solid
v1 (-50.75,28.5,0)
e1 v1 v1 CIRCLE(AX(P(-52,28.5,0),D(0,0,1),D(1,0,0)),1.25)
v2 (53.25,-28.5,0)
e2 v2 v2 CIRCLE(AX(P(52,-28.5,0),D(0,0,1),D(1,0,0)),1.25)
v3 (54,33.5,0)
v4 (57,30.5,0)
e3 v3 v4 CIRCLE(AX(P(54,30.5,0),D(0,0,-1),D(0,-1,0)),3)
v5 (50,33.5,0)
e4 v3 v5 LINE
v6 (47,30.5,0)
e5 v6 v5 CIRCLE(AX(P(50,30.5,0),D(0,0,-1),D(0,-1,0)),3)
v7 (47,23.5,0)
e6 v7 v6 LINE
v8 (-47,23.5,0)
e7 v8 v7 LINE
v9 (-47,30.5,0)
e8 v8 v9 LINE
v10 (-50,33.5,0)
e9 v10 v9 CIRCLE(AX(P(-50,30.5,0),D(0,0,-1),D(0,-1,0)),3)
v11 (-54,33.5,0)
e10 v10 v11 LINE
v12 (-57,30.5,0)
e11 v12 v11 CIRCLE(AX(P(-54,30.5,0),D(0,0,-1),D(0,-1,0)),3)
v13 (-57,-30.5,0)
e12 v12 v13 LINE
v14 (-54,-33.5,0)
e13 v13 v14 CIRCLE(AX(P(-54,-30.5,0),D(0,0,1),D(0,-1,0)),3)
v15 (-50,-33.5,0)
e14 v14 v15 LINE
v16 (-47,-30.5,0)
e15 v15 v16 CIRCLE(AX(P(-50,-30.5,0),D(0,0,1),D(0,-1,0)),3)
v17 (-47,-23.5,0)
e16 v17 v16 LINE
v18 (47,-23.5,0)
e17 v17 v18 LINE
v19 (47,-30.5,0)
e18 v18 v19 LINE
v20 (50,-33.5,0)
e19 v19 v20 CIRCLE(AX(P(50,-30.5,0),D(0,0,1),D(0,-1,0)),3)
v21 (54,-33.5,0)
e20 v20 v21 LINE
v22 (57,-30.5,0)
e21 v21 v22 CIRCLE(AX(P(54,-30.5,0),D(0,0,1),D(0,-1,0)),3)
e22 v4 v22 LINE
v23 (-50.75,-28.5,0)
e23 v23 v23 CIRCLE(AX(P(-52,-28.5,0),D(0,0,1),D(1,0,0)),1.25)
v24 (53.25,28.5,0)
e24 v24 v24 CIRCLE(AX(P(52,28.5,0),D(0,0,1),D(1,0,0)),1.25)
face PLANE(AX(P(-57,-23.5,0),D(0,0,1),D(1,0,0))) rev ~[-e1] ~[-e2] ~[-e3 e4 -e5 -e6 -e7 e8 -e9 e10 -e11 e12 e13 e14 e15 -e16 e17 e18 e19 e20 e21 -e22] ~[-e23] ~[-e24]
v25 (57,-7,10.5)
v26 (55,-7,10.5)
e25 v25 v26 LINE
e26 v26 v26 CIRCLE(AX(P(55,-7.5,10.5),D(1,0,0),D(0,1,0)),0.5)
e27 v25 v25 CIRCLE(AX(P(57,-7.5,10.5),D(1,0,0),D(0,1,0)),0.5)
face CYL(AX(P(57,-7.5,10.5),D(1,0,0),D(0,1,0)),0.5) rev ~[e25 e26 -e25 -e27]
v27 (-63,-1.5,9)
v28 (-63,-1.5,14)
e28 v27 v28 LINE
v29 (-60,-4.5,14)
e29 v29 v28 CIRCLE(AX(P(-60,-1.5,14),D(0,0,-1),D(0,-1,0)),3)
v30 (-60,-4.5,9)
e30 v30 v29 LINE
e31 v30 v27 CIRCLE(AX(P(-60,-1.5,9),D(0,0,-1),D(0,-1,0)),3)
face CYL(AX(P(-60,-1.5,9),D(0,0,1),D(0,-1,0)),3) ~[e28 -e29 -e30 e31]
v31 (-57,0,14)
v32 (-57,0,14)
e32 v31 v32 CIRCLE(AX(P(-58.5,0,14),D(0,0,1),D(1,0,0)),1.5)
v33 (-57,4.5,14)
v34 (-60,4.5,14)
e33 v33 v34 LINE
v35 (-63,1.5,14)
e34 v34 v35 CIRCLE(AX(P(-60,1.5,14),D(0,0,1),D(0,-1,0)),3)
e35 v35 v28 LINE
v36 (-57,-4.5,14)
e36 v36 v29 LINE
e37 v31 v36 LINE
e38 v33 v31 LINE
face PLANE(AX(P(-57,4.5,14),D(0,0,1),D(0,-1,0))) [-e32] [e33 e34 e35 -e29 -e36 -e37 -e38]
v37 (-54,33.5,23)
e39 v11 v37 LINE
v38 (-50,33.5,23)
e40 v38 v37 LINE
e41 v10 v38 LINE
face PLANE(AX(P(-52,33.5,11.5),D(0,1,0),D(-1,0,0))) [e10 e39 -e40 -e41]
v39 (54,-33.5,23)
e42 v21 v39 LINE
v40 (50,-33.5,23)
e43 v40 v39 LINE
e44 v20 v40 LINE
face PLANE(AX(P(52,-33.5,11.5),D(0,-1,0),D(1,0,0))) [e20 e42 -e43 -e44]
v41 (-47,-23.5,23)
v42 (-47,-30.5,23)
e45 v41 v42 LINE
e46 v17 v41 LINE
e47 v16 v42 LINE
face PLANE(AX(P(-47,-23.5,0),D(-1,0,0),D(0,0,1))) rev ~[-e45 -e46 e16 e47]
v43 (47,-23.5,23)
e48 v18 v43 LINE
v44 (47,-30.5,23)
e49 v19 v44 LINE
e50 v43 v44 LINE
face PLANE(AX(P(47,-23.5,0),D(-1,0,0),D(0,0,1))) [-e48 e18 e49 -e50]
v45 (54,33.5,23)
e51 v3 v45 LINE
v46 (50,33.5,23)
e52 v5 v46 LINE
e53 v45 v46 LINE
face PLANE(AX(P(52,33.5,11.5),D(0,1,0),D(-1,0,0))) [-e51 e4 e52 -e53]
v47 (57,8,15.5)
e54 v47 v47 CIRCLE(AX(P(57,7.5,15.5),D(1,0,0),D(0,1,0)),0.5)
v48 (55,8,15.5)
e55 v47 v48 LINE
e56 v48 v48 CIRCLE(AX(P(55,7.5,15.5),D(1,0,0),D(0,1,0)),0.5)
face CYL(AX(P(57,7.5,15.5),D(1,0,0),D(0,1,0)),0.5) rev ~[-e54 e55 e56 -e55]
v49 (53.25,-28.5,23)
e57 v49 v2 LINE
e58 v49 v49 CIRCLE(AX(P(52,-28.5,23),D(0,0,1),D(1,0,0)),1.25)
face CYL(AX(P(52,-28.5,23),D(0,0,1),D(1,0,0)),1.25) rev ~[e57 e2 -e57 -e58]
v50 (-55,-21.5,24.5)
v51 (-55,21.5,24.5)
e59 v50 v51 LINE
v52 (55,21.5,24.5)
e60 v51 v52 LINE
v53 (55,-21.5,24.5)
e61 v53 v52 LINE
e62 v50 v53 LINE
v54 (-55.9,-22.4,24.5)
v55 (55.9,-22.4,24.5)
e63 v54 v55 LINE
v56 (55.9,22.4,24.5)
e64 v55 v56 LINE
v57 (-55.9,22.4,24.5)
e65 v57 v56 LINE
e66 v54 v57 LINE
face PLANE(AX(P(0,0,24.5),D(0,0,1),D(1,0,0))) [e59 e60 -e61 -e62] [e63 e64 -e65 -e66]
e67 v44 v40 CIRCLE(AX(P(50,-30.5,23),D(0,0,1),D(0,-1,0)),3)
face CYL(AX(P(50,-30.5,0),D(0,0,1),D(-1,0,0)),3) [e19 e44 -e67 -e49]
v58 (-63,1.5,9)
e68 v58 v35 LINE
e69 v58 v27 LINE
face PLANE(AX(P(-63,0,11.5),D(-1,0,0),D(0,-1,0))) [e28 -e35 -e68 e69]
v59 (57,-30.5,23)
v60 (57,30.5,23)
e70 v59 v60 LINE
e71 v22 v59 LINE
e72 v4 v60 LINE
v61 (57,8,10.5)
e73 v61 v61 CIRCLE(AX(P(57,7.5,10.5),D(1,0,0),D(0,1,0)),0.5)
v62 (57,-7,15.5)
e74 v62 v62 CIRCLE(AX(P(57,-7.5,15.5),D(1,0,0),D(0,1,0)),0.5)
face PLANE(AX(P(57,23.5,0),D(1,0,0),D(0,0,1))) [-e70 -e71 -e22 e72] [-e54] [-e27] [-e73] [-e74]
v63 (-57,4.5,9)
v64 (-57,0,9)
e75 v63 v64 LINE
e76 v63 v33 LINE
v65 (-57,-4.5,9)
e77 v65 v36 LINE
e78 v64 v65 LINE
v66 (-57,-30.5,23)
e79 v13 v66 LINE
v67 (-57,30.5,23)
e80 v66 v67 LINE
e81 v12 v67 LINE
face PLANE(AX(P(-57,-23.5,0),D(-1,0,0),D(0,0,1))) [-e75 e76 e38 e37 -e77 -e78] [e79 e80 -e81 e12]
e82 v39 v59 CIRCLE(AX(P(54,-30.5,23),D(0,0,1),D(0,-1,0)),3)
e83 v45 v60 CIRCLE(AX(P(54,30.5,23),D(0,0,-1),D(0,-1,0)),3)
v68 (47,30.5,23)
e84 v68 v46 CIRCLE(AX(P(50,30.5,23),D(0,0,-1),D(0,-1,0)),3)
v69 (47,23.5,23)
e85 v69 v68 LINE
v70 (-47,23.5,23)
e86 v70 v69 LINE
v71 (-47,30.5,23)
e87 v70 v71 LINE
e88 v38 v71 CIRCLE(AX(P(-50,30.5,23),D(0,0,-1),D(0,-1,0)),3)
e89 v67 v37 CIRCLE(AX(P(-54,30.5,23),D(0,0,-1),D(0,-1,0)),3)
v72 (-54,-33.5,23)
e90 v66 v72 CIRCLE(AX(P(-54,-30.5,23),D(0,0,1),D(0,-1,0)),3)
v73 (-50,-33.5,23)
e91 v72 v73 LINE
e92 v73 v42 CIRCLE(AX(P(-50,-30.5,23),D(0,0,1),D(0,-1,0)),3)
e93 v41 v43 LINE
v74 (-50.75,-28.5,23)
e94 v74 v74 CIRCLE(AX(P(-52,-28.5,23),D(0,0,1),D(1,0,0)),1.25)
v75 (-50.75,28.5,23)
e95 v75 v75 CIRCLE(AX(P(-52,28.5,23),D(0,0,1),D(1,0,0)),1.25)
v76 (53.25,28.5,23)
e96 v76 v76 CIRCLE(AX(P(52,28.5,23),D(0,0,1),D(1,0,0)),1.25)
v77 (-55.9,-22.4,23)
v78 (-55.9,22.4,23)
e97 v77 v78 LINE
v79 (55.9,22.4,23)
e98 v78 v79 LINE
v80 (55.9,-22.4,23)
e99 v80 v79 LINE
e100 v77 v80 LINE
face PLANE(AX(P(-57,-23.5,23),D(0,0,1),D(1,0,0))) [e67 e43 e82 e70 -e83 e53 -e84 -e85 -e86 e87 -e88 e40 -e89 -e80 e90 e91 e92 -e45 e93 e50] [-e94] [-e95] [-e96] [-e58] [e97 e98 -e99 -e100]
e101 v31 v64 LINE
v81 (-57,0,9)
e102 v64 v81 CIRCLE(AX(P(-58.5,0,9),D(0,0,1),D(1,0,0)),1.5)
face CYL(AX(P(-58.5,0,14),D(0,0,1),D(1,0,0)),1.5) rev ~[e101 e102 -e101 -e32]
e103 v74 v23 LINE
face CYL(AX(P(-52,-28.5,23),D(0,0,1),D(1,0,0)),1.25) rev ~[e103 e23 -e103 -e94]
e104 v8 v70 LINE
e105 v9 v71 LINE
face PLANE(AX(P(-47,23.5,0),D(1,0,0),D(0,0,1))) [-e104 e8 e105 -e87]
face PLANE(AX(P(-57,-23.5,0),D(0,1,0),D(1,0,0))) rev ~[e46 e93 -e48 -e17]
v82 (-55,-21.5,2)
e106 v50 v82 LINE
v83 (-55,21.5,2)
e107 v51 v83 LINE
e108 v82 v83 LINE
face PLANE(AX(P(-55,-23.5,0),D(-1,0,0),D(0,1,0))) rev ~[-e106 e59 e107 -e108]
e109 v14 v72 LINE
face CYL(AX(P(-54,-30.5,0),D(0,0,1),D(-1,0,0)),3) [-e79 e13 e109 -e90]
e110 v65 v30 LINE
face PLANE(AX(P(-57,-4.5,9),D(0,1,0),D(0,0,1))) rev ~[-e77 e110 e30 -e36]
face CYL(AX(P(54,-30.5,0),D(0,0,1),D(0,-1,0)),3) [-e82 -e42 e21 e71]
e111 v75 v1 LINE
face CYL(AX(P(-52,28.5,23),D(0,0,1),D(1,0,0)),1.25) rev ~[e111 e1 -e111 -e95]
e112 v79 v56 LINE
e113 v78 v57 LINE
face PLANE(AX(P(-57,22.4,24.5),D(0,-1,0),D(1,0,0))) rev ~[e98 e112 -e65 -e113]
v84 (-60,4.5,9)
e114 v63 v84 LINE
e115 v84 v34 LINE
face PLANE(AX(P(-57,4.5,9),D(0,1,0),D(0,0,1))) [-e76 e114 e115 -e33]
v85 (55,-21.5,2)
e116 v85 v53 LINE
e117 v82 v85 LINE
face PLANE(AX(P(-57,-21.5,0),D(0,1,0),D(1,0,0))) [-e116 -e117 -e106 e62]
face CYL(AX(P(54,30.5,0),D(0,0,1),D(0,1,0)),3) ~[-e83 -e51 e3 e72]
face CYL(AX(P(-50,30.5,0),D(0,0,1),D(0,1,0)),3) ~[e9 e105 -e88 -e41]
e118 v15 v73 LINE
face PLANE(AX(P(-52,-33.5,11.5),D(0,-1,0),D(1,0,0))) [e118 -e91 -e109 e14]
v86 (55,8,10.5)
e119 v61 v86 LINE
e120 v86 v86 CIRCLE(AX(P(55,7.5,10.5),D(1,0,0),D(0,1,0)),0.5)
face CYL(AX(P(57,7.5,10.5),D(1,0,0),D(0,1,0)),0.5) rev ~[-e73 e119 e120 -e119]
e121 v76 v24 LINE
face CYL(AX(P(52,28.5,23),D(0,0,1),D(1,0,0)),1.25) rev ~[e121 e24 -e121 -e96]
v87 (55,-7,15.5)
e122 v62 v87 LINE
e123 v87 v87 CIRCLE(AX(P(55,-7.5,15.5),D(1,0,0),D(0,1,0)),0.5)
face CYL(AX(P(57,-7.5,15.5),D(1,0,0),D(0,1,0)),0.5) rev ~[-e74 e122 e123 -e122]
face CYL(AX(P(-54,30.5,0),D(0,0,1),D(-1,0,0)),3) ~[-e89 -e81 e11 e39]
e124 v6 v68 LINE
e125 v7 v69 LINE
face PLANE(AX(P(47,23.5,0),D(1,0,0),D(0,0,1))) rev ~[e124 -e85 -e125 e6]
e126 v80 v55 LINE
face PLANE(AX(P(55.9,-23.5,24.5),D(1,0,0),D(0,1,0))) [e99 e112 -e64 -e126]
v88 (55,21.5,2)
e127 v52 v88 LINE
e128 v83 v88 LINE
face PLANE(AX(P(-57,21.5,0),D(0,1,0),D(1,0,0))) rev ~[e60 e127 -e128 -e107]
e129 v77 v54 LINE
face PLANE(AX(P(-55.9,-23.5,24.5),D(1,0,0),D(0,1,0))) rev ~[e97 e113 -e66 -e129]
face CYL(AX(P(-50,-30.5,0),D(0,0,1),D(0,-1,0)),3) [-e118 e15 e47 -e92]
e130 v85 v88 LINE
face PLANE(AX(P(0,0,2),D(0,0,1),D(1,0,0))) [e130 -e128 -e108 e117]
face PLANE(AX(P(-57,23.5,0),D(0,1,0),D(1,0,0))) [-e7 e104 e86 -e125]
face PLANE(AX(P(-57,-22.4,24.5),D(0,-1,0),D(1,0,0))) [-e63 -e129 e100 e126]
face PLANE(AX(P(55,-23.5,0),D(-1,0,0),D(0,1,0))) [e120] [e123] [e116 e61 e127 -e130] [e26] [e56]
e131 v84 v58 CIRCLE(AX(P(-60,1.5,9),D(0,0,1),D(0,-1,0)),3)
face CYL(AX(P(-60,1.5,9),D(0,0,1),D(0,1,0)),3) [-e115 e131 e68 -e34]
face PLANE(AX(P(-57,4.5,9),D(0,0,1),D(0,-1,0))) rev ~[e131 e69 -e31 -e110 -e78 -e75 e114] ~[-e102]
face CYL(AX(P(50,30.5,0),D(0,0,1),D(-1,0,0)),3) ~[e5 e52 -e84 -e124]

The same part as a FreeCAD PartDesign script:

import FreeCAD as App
import Part
import Sketcher

V = App.Vector
Q = App.Units.Quantity


def edges_at(feature, points):
    """Names of the edges that pass closest to the given points."""
    edges = feature.Shape.Edges
    near = lambda p: min(range(len(edges)), key=lambda i: edges[i].distToShape(Part.Vertex(*p))[0])
    return sorted({f"Edge{near(p) + 1}" for p in points})


def faces_at(feature, points):
    """Names of the faces that lie closest to the given points."""
    faces = feature.Shape.Faces
    near = lambda p: min(range(len(faces)), key=lambda i: faces[i].distToShape(Part.Vertex(*p))[0])
    return sorted({f"Face{near(p) + 1}" for p in points})


def add_polygon(sketch, points):
    """Adds a closed chain of lines whose ends are joined by coincident constraints."""
    first, n = sketch.GeometryCount, len(points)
    for a, b in zip(points, points[1:] + points[:1]):
        sketch.addGeometry(Part.LineSegment(App.Vector(*a, 0), App.Vector(*b, 0)), False)
    for i in range(n):
        sketch.addConstraint(Sketcher.Constraint("Coincident", first + i, 2, first + (i + 1) % n, 1))

doc = App.newDocument("Part")
body = doc.addObject("PartDesign::Body", "Body")

# Sketch on XY plane
sketch1 = doc.addObject("Sketcher::SketchObject", "Sketch")
body.addObject(sketch1)
sketch1.AttachmentSupport = (doc.XY_Plane, [""])
sketch1.MapMode = "FlatFace"
add_polygon(sketch1, [(-57, 24), (-57, -24), (57, -24), (57, 24)])  # lines 0-3
sketch1.addConstraint([
    Sketcher.Constraint("Vertical", 0),
    Sketcher.Constraint("Horizontal", 1),
    Sketcher.Constraint("Vertical", 2),
    Sketcher.Constraint("Horizontal", 3),
    Sketcher.Constraint("Symmetric", 0, 2, 2, 2, -1, 1),
    Sketcher.Constraint("DistanceX", 1, 1, 1, 2, Q("114 mm")),
    Sketcher.Constraint("DistanceY", 0, 2, 0, 1, Q("47 mm")),
])
pad1 = doc.addObject("PartDesign::Pad", "Pad")
body.addObject(pad1)
pad1.Profile = sketch1
pad1.Length = 24.5
doc.recompute()

thickness = doc.addObject("PartDesign::Thickness", "Thickness")
body.addObject(thickness)
thickness.Base = (pad1, faces_at(pad1, [(0, 0, 24.5)]))
thickness.Value = 2
thickness.Reversed = True
thickness.Join = "Arc"

# Sketch on XY plane
sketch2 = doc.addObject("Sketcher::SketchObject", "Sketch001")
body.addObject(sketch2)
sketch2.AttachmentSupport = (doc.XY_Plane, [""])
sketch2.MapMode = "FlatFace"
sketch2.AttachmentOffset = App.Placement(V(0, 0, 24.5), App.Rotation())
add_polygon(sketch2, [(-57, -22.4), (-57, -23.5), (57, -23.5), (57, -22.4)])  # lines 0-3
add_polygon(sketch2, [(-57, 23.5), (-57, 22.4), (57, 22.4), (57, 23.5)])  # lines 4-7
sketch2.addConstraint([
    Sketcher.Constraint("Vertical", 0),
    Sketcher.Constraint("Horizontal", 1),
    Sketcher.Constraint("Vertical", 2),
    Sketcher.Constraint("Horizontal", 3),
    Sketcher.Constraint("Vertical", 4),
    Sketcher.Constraint("Horizontal", 5),
    Sketcher.Constraint("Vertical", 6),
    Sketcher.Constraint("Horizontal", 7),
    Sketcher.Constraint("Symmetric", 2, 2, 4, 2, -1, 1),
    Sketcher.Constraint("Symmetric", 0, 2, 6, 2, -1, 1),
    Sketcher.Constraint("Vertical", 3, 2, 4, 2),
    Sketcher.Constraint("DistanceX", 1, 1, 1, 2, Q("114 mm")),
    Sketcher.Constraint("DistanceY", 0, 2, 0, 1, Q("1.1 mm")),
    Sketcher.Constraint("DistanceY", 1, 2, 6, 2, Q("47 mm")),
])
pocket1 = doc.addObject("PartDesign::Pocket", "Pocket")
body.addObject(pocket1)
pocket1.Profile = sketch2
pocket1.Length = 1.5

# Sketch on XY plane
sketch3 = doc.addObject("Sketcher::SketchObject", "Sketch002")
body.addObject(sketch3)
sketch3.AttachmentSupport = (doc.XY_Plane, [""])
sketch3.MapMode = "FlatFace"
sketch3.AttachmentOffset = App.Placement(V(0, 0, 24.5), App.Rotation())
add_polygon(sketch3, [(55.9, 23.5), (55.9, -23.5), (57, -23.5), (57, 23.5)])  # lines 0-3
add_polygon(sketch3, [(-57, 23.5), (-57, -23.5), (-55.9, -23.5), (-55.9, 23.5)])  # lines 4-7
sketch3.addConstraint([
    Sketcher.Constraint("Vertical", 0),
    Sketcher.Constraint("Horizontal", 1),
    Sketcher.Constraint("Vertical", 2),
    Sketcher.Constraint("Horizontal", 3),
    Sketcher.Constraint("Vertical", 4),
    Sketcher.Constraint("Horizontal", 5),
    Sketcher.Constraint("Vertical", 6),
    Sketcher.Constraint("Horizontal", 7),
    Sketcher.Constraint("Symmetric", 2, 2, 4, 2, -1, 1),
    Sketcher.Constraint("Symmetric", 0, 2, 6, 2, -1, 1),
    Sketcher.Constraint("Horizontal", 1, 2, 4, 2),
    Sketcher.Constraint("DistanceY", 0, 2, 0, 1, Q("47 mm")),
    Sketcher.Constraint("DistanceX", 1, 1, 1, 2, Q("1.1 mm")),
    Sketcher.Constraint("DistanceX", -1, 1, 1, 2, Q("57 mm")),
])
pocket2 = doc.addObject("PartDesign::Pocket", "Pocket001")
body.addObject(pocket2)
pocket2.Profile = sketch3
pocket2.Length = 1.5

# Sketch on XZ plane
sketch4 = doc.addObject("Sketcher::SketchObject", "Sketch003")
body.addObject(sketch4)
sketch4.AttachmentSupport = (doc.XZ_Plane, [""])
sketch4.MapMode = "FlatFace"
sketch4.AttachmentOffset = App.Placement(V(0, 0, -23.5), App.Rotation())
add_polygon(sketch4, [(57, 23), (57, 0), (47, 0), (47, 23)])  # lines 0-3
add_polygon(sketch4, [(-47, 23), (-47, 0), (-57, 0), (-57, 23)])  # lines 4-7
sketch4.addConstraint([
    Sketcher.Constraint("Vertical", 0),
    Sketcher.Constraint("Horizontal", 1),
    Sketcher.Constraint("Vertical", 2),
    Sketcher.Constraint("Horizontal", 3),
    Sketcher.Constraint("Vertical", 4),
    Sketcher.Constraint("Horizontal", 5),
    Sketcher.Constraint("Vertical", 6),
    Sketcher.Constraint("Horizontal", 7),
    Sketcher.Constraint("Symmetric", 1, 2, 4, 2, -1, 1),
    Sketcher.Constraint("Symmetric", 0, 2, 5, 2, -2),
    Sketcher.Constraint("Horizontal", 3, 2, 6, 2),
    Sketcher.Constraint("DistanceX", 1, 2, 1, 1, Q("10 mm")),
    Sketcher.Constraint("DistanceY", 0, 2, 0, 1, Q("23 mm")),
    Sketcher.Constraint("DistanceX", -1, 1, 0, 2, Q("57 mm")),
])
pad2 = doc.addObject("PartDesign::Pad", "Pad001")
body.addObject(pad2)
pad2.Profile = sketch4
pad2.Length = 10
pad2.Reversed = True

# Sketch on XZ plane
sketch5 = doc.addObject("Sketcher::SketchObject", "Sketch004")
body.addObject(sketch5)
sketch5.AttachmentSupport = (doc.XZ_Plane, [""])
sketch5.MapMode = "FlatFace"
sketch5.AttachmentOffset = App.Placement(V(0, 0, 23.5), App.Rotation())
add_polygon(sketch5, [(-57, 23), (-57, 0), (-47, 0), (-47, 23)])  # lines 0-3
add_polygon(sketch5, [(47, 23), (47, 0), (57, 0), (57, 23)])  # lines 4-7
sketch5.addConstraint([
    Sketcher.Constraint("Vertical", 0),
    Sketcher.Constraint("Horizontal", 1),
    Sketcher.Constraint("Vertical", 2),
    Sketcher.Constraint("Horizontal", 3),
    Sketcher.Constraint("Vertical", 4),
    Sketcher.Constraint("Horizontal", 5),
    Sketcher.Constraint("Vertical", 6),
    Sketcher.Constraint("Horizontal", 7),
    Sketcher.Constraint("Symmetric", 1, 2, 4, 2, -1, 1),
    Sketcher.Constraint("Symmetric", 0, 2, 5, 2, -2),
    Sketcher.Constraint("Horizontal", 3, 2, 6, 2),
    Sketcher.Constraint("DistanceX", 1, 1, 1, 2, Q("10 mm")),
    Sketcher.Constraint("DistanceY", 0, 2, 0, 1, Q("23 mm")),
    Sketcher.Constraint("DistanceX", 0, 2, -1, 1, Q("57 mm")),
])
pad3 = doc.addObject("PartDesign::Pad", "Pad002")
body.addObject(pad3)
pad3.Profile = sketch5
pad3.Length = 10

# Sketch on XY plane
sketch6 = doc.addObject("Sketcher::SketchObject", "Sketch005")
body.addObject(sketch6)
sketch6.AttachmentSupport = (doc.XY_Plane, [""])
sketch6.MapMode = "FlatFace"
sketch6.AttachmentOffset = App.Placement(V(0, 0, 23), App.Rotation())
sketch6.addGeometry([
    Part.Circle(V(-52, 28.5, 0), V(0, 0, 1), 1.2),
    Part.Circle(V(52, 28.5, 0), V(0, 0, 1), 1.2),
    Part.Circle(V(52, -28.5, 0), V(0, 0, 1), 1.2),
    Part.Circle(V(-52, -28.5, 0), V(0, 0, 1), 1.2),
], False)
sketch6.addConstraint([
    Sketcher.Constraint("Equal", 0, 1),
    Sketcher.Constraint("Equal", 1, 2),
    Sketcher.Constraint("Equal", 2, 3),
    Sketcher.Constraint("Symmetric", 0, 3, 2, 3, -1, 1),
    Sketcher.Constraint("Symmetric", 1, 3, 3, 3, -1, 1),
    Sketcher.Constraint("Symmetric", 0, 3, 1, 3, -2),
    Sketcher.Constraint("Diameter", 0, Q("2.5 mm")),
    Sketcher.Constraint("DistanceX", 0, 3, -1, 1, Q("52 mm")),
    Sketcher.Constraint("DistanceY", 2, 3, 1, 3, Q("57 mm")),
])
pocket3 = doc.addObject("PartDesign::Pocket", "Pocket002")
body.addObject(pocket3)
pocket3.Profile = sketch6
pocket3.Length = 23

# Sketch on YZ plane
sketch7 = doc.addObject("Sketcher::SketchObject", "Sketch006")
body.addObject(sketch7)
sketch7.AttachmentSupport = (doc.YZ_Plane, [""])
sketch7.MapMode = "FlatFace"
sketch7.AttachmentOffset = App.Placement(V(0, 0, 57), App.Rotation())
sketch7.addGeometry([
    Part.Circle(V(7.5, 10.5, 0), V(0, 0, 1), 0.5),
    Part.Circle(V(7.5, 15.5, 0), V(0, 0, 1), 0.5),
    Part.Circle(V(-7.5, 10.5, 0), V(0, 0, 1), 0.5),
    Part.Circle(V(-7.5, 15.5, 0), V(0, 0, 1), 0.5),
], False)
sketch7.addConstraint([
    Sketcher.Constraint("Equal", 0, 1),
    Sketcher.Constraint("Equal", 1, 2),
    Sketcher.Constraint("Equal", 2, 3),
    Sketcher.Constraint("Symmetric", 0, 3, 2, 3, -2),
    Sketcher.Constraint("Symmetric", 1, 3, 3, 3, -2),
    Sketcher.Constraint("Vertical", 0, 3, 1, 3),
    Sketcher.Constraint("Diameter", 0, Q("1 mm")),
    Sketcher.Constraint("DistanceY", 0, 3, 1, 3, Q("5 mm")),
    Sketcher.Constraint("DistanceX", 2, 3, 0, 3, Q("15 mm")),
    Sketcher.Constraint("DistanceY", -1, 1, 0, 3, Q("10.5 mm")),
])
pocket4 = doc.addObject("PartDesign::Pocket", "Pocket003")
body.addObject(pocket4)
pocket4.Profile = sketch7
pocket4.Length = 2

# Sketch on YZ plane
sketch8 = doc.addObject("Sketcher::SketchObject", "Sketch007")
body.addObject(sketch8)
sketch8.AttachmentSupport = (doc.YZ_Plane, [""])
sketch8.MapMode = "FlatFace"
sketch8.AttachmentOffset = App.Placement(V(0, 0, -57), App.Rotation())
add_polygon(sketch8, [(4, 14), (4, 9), (-4, 9), (-4, 14)])  # lines 0-3
sketch8.addConstraint([
    Sketcher.Constraint("Vertical", 0),
    Sketcher.Constraint("Horizontal", 1),
    Sketcher.Constraint("Vertical", 2),
    Sketcher.Constraint("Horizontal", 3),
    Sketcher.Constraint("DistanceX", 1, 2, 1, 1, Q("9 mm")),
    Sketcher.Constraint("DistanceY", 0, 2, 0, 1, Q("5 mm")),
    Sketcher.Constraint("DistanceY", -1, 1, 0, 2, Q("9 mm")),
    Sketcher.Constraint("DistanceX", -1, 1, 0, 2, Q("4.5 mm")),
])
pad4 = doc.addObject("PartDesign::Pad", "Pad003")
body.addObject(pad4)
pad4.Profile = sketch8
pad4.Length = 6
pad4.Reversed = True

# Sketch on XY plane
sketch9 = doc.addObject("Sketcher::SketchObject", "Sketch008")
body.addObject(sketch9)
sketch9.AttachmentSupport = (doc.XY_Plane, [""])
sketch9.MapMode = "FlatFace"
sketch9.AttachmentOffset = App.Placement(V(0, 0, 14), App.Rotation())
sketch9.addGeometry(Part.Circle(V(-58.5, 0, 0), V(0, 0, 1), 1.5), False)
sketch9.addConstraint([
    Sketcher.Constraint("PointOnObject", 0, 3, -1),
    Sketcher.Constraint("Diameter", 0, Q("3 mm")),
    Sketcher.Constraint("DistanceX", 0, 3, -1, 1, Q("58.5 mm")),
])
pocket5 = doc.addObject("PartDesign::Pocket", "Pocket004")
body.addObject(pocket5)
pocket5.Profile = sketch9
pocket5.Length = 5
doc.recompute()

fillet = doc.addObject("PartDesign::Fillet", "Fillet")
body.addObject(fillet)
fillet.Base = (pocket5, edges_at(pocket5, [
    (-57, -33.5, 11.5),
    (-47, -33.5, 11.5),
    (47, -33.5, 11.5),
    (57, -33.5, 11.5),
]))
fillet.Radius = 3
doc.recompute()

fillet2 = doc.addObject("PartDesign::Fillet", "Fillet001")
body.addObject(fillet2)
fillet2.Base = (fillet, edges_at(fillet, [(-63, -4.5, 11.5), (-63, 4.5, 11.5)]))
fillet2.Radius = 3
doc.recompute()

fillet3 = doc.addObject("PartDesign::Fillet", "Fillet002")
body.addObject(fillet3)
fillet3.Base = (fillet2, edges_at(fillet2, [
    (57, 33.5, 11.5),
    (47, 33.5, 11.5),
    (-47, 33.5, 11.5),
    (-57, 33.5, 11.5),
]))
fillet3.Radius = 3

doc.recompute()
